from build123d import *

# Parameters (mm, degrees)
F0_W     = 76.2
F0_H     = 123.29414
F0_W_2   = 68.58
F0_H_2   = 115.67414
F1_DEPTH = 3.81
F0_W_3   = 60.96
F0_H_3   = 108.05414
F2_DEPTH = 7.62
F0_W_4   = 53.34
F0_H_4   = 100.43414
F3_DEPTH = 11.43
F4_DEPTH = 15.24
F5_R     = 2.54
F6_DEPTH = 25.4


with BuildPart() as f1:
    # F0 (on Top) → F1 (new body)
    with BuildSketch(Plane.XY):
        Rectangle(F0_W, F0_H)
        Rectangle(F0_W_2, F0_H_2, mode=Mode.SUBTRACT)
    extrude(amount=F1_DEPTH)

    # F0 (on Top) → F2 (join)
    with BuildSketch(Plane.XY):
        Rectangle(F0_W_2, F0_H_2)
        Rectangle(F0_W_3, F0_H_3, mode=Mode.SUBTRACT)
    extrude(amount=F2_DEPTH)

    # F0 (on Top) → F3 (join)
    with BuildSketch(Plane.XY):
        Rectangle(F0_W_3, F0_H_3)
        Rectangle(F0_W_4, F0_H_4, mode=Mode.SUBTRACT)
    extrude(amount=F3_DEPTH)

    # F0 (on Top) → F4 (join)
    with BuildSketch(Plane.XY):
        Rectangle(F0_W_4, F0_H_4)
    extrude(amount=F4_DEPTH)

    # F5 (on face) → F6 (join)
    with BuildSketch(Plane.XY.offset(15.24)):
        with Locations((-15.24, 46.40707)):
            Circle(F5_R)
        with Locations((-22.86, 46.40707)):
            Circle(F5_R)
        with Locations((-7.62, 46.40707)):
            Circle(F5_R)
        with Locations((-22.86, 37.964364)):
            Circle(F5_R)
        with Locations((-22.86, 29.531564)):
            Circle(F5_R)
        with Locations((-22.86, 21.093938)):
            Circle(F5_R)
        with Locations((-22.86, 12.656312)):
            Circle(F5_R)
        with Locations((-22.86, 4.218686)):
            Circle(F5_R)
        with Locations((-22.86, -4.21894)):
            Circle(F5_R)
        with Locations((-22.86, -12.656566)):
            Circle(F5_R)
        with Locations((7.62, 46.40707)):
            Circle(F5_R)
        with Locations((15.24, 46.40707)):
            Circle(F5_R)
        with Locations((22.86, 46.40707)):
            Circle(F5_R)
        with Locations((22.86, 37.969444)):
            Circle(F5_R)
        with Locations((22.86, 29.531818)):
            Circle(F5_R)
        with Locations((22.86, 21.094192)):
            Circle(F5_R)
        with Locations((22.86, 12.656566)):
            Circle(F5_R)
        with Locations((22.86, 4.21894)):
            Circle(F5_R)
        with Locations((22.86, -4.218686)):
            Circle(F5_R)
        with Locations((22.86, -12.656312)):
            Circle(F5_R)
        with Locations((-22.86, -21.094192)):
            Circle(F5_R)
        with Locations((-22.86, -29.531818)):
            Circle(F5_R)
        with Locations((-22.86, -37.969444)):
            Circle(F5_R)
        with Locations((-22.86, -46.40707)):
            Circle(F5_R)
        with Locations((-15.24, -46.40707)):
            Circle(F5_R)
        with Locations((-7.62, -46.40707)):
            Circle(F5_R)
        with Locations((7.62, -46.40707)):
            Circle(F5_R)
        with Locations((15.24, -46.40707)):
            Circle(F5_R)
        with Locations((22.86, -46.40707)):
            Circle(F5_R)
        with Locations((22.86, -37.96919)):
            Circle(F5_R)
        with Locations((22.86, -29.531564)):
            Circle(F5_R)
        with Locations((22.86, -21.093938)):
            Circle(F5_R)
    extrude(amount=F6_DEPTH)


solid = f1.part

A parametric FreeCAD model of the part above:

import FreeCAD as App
import Part
import Sketcher

V = App.Vector
Q = App.Units.Quantity


def add_polygon(sketch, points):
    """Adds a closed chain of lines whose ends are joined by coincident constraints."""
    first, n = sketch.GeometryCount, len(points)
    for a, b in zip(points, points[1:] + points[:1]):
        sketch.addGeometry(Part.LineSegment(App.Vector(*a, 0), App.Vector(*b, 0)), False)
    for i in range(n):
        sketch.addConstraint(Sketcher.Constraint("Coincident", first + i, 2, first + (i + 1) % n, 1))

doc = App.newDocument("Part")
body = doc.addObject("PartDesign::Body", "Body")

# Sketch on XY plane
sketch1 = body.newObject("Sketcher::SketchObject", "Sketch")
sketch1.AttachmentSupport = (doc.getObject("XY_Plane"), [""])
sketch1.MapMode = "FlatFace"
add_polygon(sketch1, [(-38.1, 61.64707), (-38.1, -61.64707), (38.1, -61.64707), (38.1, 61.64707)])  # lines 0-3
add_polygon(sketch1, [(34.29, -57.83707), (-34.29, -57.83707), (-34.29, 57.83707), (34.29, 57.83707)])  # lines 4-7
sketch1.addConstraint([
    Sketcher.Constraint("Vertical", 0),
    Sketcher.Constraint("Horizontal", 1),
    Sketcher.Constraint("Vertical", 2),
    Sketcher.Constraint("Horizontal", 3),
    Sketcher.Constraint("Horizontal", 4),
    Sketcher.Constraint("Vertical", 5),
    Sketcher.Constraint("Horizontal", 6),
    Sketcher.Constraint("Vertical", 7),
    Sketcher.Constraint("Symmetric", 0, 2, 2, 2, -1, 1),
    Sketcher.Constraint("Symmetric", 4, 2, 6, 2, -1, 1),
    Sketcher.Constraint("DistanceX", 1, 1, 1, 2, Q("3 in")),
    Sketcher.Constraint("DistanceX", 4, 2, 4, 1, Q("2.7 in")),
    Sketcher.Constraint("DistanceY", 0, 2, 4, 2, Q("0.15 in")),
    Sketcher.Constraint("DistanceY", 0, 2, 0, 1, Q("4.8541 in")),
])
pad1 = body.newObject("PartDesign::Pad", "Pad")
pad1.Profile = sketch1
pad1.Length = Q("0.15 in")

# Sketch on XY plane
sketch2 = body.newObject("Sketcher::SketchObject", "Sketch001")
sketch2.AttachmentSupport = (doc.getObject("XY_Plane"), [""])
sketch2.MapMode = "FlatFace"
add_polygon(sketch2, [(-34.29, 57.83707), (-34.29, -57.83707), (34.29, -57.83707), (34.29, 57.83707)])  # lines 0-3
add_polygon(sketch2, [(30.48, -54.02707), (-30.48, -54.02707), (-30.48, 54.02707), (30.48, 54.02707)])  # lines 4-7
sketch2.addConstraint([
    Sketcher.Constraint("Vertical", 0),
    Sketcher.Constraint("Horizontal", 1),
    Sketcher.Constraint("Vertical", 2),
    Sketcher.Constraint("Horizontal", 3),
    Sketcher.Constraint("Horizontal", 4),
    Sketcher.Constraint("Vertical", 5),
    Sketcher.Constraint("Horizontal", 6),
    Sketcher.Constraint("Vertical", 7),
    Sketcher.Constraint("Symmetric", 0, 2, 2, 2, -1, 1),
    Sketcher.Constraint("Symmetric", 4, 2, 6, 2, -1, 1),
    Sketcher.Constraint("DistanceX", 1, 1, 1, 2, Q("2.7 in")),
    Sketcher.Constraint("DistanceX", 4, 2, 4, 1, Q("2.4 in")),
    Sketcher.Constraint("DistanceY", 0, 2, 4, 2, Q("0.15 in")),
    Sketcher.Constraint("DistanceY", 0, 2, 0, 1, Q("4.5541 in")),
])
pad2 = body.newObject("PartDesign::Pad", "Pad001")
pad2.Profile = sketch2
pad2.Length = Q("0.3 in")

# Sketch on XY plane
sketch3 = body.newObject("Sketcher::SketchObject", "Sketch002")
sketch3.AttachmentSupport = (doc.getObject("XY_Plane"), [""])
sketch3.MapMode = "FlatFace"
add_polygon(sketch3, [(-30.48, 54.02707), (-30.48, -54.02707), (30.48, -54.02707), (30.48, 54.02707)])  # lines 0-3
add_polygon(sketch3, [(26.67, -50.21707), (-26.67, -50.21707), (-26.67, 50.21707), (26.67, 50.21707)])  # lines 4-7
sketch3.addConstraint([
    Sketcher.Constraint("Vertical", 0),
    Sketcher.Constraint("Horizontal", 1),
    Sketcher.Constraint("Vertical", 2),
    Sketcher.Constraint("Horizontal", 3),
    Sketcher.Constraint("Horizontal", 4),
    Sketcher.Constraint("Vertical", 5),
    Sketcher.Constraint("Horizontal", 6),
    Sketcher.Constraint("Vertical", 7),
    Sketcher.Constraint("Symmetric", 0, 2, 2, 2, -1, 1),
    Sketcher.Constraint("Symmetric", 4, 2, 6, 2, -1, 1),
    Sketcher.Constraint("DistanceX", 1, 1, 1, 2, Q("2.4 in")),
    Sketcher.Constraint("DistanceX", 4, 2, 4, 1, Q("2.1 in")),
    Sketcher.Constraint("DistanceY", 0, 2, 4, 2, Q("0.15 in")),
    Sketcher.Constraint("DistanceY", 0, 2, 0, 1, Q("4.2541 in")),
])
pad3 = body.newObject("PartDesign::Pad", "Pad002")
pad3.Profile = sketch3
pad3.Length = Q("0.45 in")

# Sketch on XY plane
sketch4 = body.newObject("Sketcher::SketchObject", "Sketch003")
sketch4.AttachmentSupport = (doc.getObject("XY_Plane"), [""])
sketch4.MapMode = "FlatFace"
add_polygon(sketch4, [(-26.67, 50.21707), (-26.67, -50.21707), (26.67, -50.21707), (26.67, 50.21707)])  # lines 0-3
sketch4.addConstraint([
    Sketcher.Constraint("Vertical", 0),
    Sketcher.Constraint("Horizontal", 1),
    Sketcher.Constraint("Vertical", 2),
    Sketcher.Constraint("Horizontal", 3),
    Sketcher.Constraint("Symmetric", 0, 2, 2, 2, -1, 1),
    Sketcher.Constraint("DistanceX", 1, 1, 1, 2, Q("2.1 in")),
    Sketcher.Constraint("DistanceY", 0, 2, 0, 1, Q("3.9541 in")),
])
pad4 = body.newObject("PartDesign::Pad", "Pad003")
pad4.Profile = sketch4
pad4.Length = Q("0.6 in")

# Sketch on XY plane
sketch5 = body.newObject("Sketcher::SketchObject", "Sketch004")
sketch5.AttachmentSupport = (doc.getObject("XY_Plane"), [""])
sketch5.MapMode = "FlatFace"
sketch5.AttachmentOffset = App.Placement(V(0, 0, 0.6 * 25.4), App.Rotation())
sketch5.addGeometry([
    Part.Circle(V(-15.24, 46.40707, 0), V(0, 0, 1), 2.54),  # 0
    Part.Circle(V(-22.86, 46.40707, 0), V(0, 0, 1), 2.54),  # 1
    Part.Circle(V(-7.62, 46.40707, 0), V(0, 0, 1), 2.54),  # 2
    Part.Circle(V(-22.86, 37.964364, 0), V(0, 0, 1), 2.54),  # 3
    Part.Circle(V(-22.86, 29.531564, 0), V(0, 0, 1), 2.54),  # 4
    Part.Circle(V(-22.86, 21.093938, 0), V(0, 0, 1), 2.54),  # 5
    Part.Circle(V(-22.86, 12.656312, 0), V(0, 0, 1), 2.54),  # 6
    Part.Circle(V(-22.86, 4.218686, 0), V(0, 0, 1), 2.54),  # 7
    Part.Circle(V(-22.86, -4.21894, 0), V(0, 0, 1), 2.54),  # 8
    Part.Circle(V(-22.86, -12.656566, 0), V(0, 0, 1), 2.54),  # 9
    Part.Circle(V(7.62, 46.40707, 0), V(0, 0, 1), 2.54),  # 10
    Part.Circle(V(15.24, 46.40707, 0), V(0, 0, 1), 2.54),  # 11
    Part.Circle(V(22.86, 46.40707, 0), V(0, 0, 1), 2.54),  # 12
    Part.Circle(V(22.86, 37.969444, 0), V(0, 0, 1), 2.54),  # 13
    Part.Circle(V(22.86, 29.531818, 0), V(0, 0, 1), 2.54),  # 14
    Part.Circle(V(22.86, 21.094192, 0), V(0, 0, 1), 2.54),  # 15
    Part.Circle(V(22.86, 12.656566, 0), V(0, 0, 1), 2.54),  # 16
    Part.Circle(V(22.86, 4.21894, 0), V(0, 0, 1), 2.54),  # 17
    Part.Circle(V(22.86, -4.218686, 0), V(0, 0, 1), 2.54),  # 18
    Part.Circle(V(22.86, -12.656312, 0), V(0, 0, 1), 2.54),  # 19
    Part.Circle(V(-22.86, -21.094192, 0), V(0, 0, 1), 2.54),  # 20
    Part.Circle(V(-22.86, -29.531818, 0), V(0, 0, 1), 2.54),  # 21
    Part.Circle(V(-22.86, -37.969444, 0), V(0, 0, 1), 2.54),  # 22
    Part.Circle(V(-22.86, -46.40707, 0), V(0, 0, 1), 2.54),  # 23
    Part.Circle(V(-15.24, -46.40707, 0), V(0, 0, 1), 2.54),  # 24
    Part.Circle(V(-7.62, -46.40707, 0), V(0, 0, 1), 2.54),  # 25
    Part.Circle(V(7.62, -46.40707, 0), V(0, 0, 1), 2.54),  # 26
    Part.Circle(V(15.24, -46.40707, 0), V(0, 0, 1), 2.54),  # 27
    Part.Circle(V(22.86, -46.40707, 0), V(0, 0, 1), 2.54),  # 28
    Part.Circle(V(22.86, -37.96919, 0), V(0, 0, 1), 2.54),  # 29
    Part.Circle(V(22.86, -29.531564, 0), V(0, 0, 1), 2.54),  # 30
    Part.Circle(V(22.86, -21.093938, 0), V(0, 0, 1), 2.54),  # 31
], False)
sketch5.addConstraint([
    Sketcher.Constraint("Equal", 0, 1),
    Sketcher.Constraint("Equal", 1, 2),
    Sketcher.Constraint("Equal", 2, 3),
    Sketcher.Constraint("Equal", 3, 4),
    Sketcher.Constraint("Equal", 4, 5),
    Sketcher.Constraint("Equal", 5, 6),
    Sketcher.Constraint("Equal", 6, 7),
    Sketcher.Constraint("Equal", 7, 8),
    Sketcher.Constraint("Equal", 8, 9),
    Sketcher.Constraint("Equal", 9, 10),
    Sketcher.Constraint("Equal", 10, 11),
    Sketcher.Constraint("Equal", 11, 12),
    Sketcher.Constraint("Equal", 12, 13),
    Sketcher.Constraint("Equal", 13, 14),
    Sketcher.Constraint("Equal", 14, 15),
    Sketcher.Constraint("Equal", 15, 16),
    Sketcher.Constraint("Equal", 16, 17),
    Sketcher.Constraint("Equal", 17, 18),
    Sketcher.Constraint("Equal", 18, 19),
    Sketcher.Constraint("Equal", 19, 20),
    Sketcher.Constraint("Equal", 20, 21),
    Sketcher.Constraint("Equal", 21, 22),
    Sketcher.Constraint("Equal", 22, 23),
    Sketcher.Constraint("Equal", 23, 24),
    Sketcher.Constraint("Equal", 24, 25),
    Sketcher.Constraint("Equal", 25, 26),
    Sketcher.Constraint("Equal", 26, 27),
    Sketcher.Constraint("Equal", 27, 28),
    Sketcher.Constraint("Equal", 28, 29),
    Sketcher.Constraint("Equal", 29, 30),
    Sketcher.Constraint("Equal", 30, 31),
    Sketcher.Constraint("Symmetric", 9, 3, 16, 3, -1, 1),
    Sketcher.Constraint("Symmetric", 8, 3, 17, 3, -1, 1),
    Sketcher.Constraint("Symmetric", 7, 3, 18, 3, -1, 1),
    Sketcher.Constraint("Symmetric", 6, 3, 19, 3, -1, 1),
    Sketcher.Constraint("Symmetric", 15, 3, 20, 3, -1, 1),
    Sketcher.Constraint("Symmetric", 14, 3, 21, 3, -1, 1),
    Sketcher.Constraint("Symmetric", 13, 3, 22, 3, -1, 1),
    Sketcher.Constraint("Symmetric", 12, 3, 23, 3, -1, 1),
    Sketcher.Constraint("Symmetric", 11, 3, 24, 3, -1, 1),
    Sketcher.Constraint("Symmetric", 10, 3, 25, 3, -1, 1),
    Sketcher.Constraint("Symmetric", 2, 3, 26, 3, -1, 1),
    Sketcher.Constraint("Symmetric", 0, 3, 27, 3, -1, 1),
    Sketcher.Constraint("Symmetric", 1, 3, 28, 3, -1, 1),
    Sketcher.Constraint("Symmetric", 4, 3, 30, 3, -1, 1),
    Sketcher.Constraint("Symmetric", 5, 3, 31, 3, -1, 1),
    Sketcher.Constraint("Symmetric", 2, 3, 10, 3, -2),
    Sketcher.Constraint("Symmetric", 0, 3, 11, 3, -2),
    Sketcher.Constraint("Symmetric", 1, 3, 12, 3, -2),
    Sketcher.Constraint("Horizontal", 0, 3, 1, 3),
    Sketcher.Constraint("Horizontal", 1, 3, 2, 3),
    Sketcher.Constraint("Vertical", 1, 3, 3, 3),
    Sketcher.Constraint("Vertical", 3, 3, 4, 3),
    Sketcher.Constraint("Vertical", 4, 3, 5, 3),
    Sketcher.Constraint("Vertical", 5, 3, 6, 3),
    Sketcher.Constraint("Vertical", 6, 3, 7, 3),
    Sketcher.Constraint("Vertical", 7, 3, 8, 3),
    Sketcher.Constraint("Vertical", 8, 3, 9, 3),
    Sketcher.Constraint("Vertical", 12, 3, 13, 3),
    Sketcher.Constraint("Vertical", 13, 3, 14, 3),
    Sketcher.Constraint("Vertical", 14, 3, 15, 3),
    Sketcher.Constraint("Vertical", 28, 3, 29, 3),
    Sketcher.Constraint("Diameter", 0, Q("0.2 in")),
    Sketcher.Constraint("DistanceX", 0, 3, -1, 1, Q("0.6 in")),
    Sketcher.Constraint("DistanceX", 1, 3, -1, 1, Q("0.9 in")),
    Sketcher.Constraint("DistanceX", 2, 3, -1, 1, Q("0.3 in")),
    Sketcher.Constraint("DistanceY", 4, 3, 3, 3, Q("0.332 in")),
    Sketcher.Constraint("DistanceY", 8, 3, -1, 1, Q("0.1661 in")),
    Sketcher.Constraint("DistanceY", 28, 3, 29, 3, Q("0.3322 in")),
    Sketcher.Constraint("DistanceY", -1, 1, 0, 3, 46.40707),
    Sketcher.Constraint("DistanceY", -1, 1, 5, 3, 21.093938),
    Sketcher.Constraint("DistanceY", -1, 1, 14, 3, 29.531818),
    Sketcher.Constraint("DistanceY", -1, 1, 15, 3, 21.094192),
    Sketcher.Constraint("DistanceY", 6, 3, 4, 3, 16.875252),
    Sketcher.Constraint("DistanceY", 7, 3, 3, 3, 33.745678),
    Sketcher.Constraint("DistanceY", 8, 3, 6, 3, 16.875252),
    Sketcher.Constraint("DistanceY", 9, 3, 7, 3, 16.875252),
    Sketcher.Constraint("DistanceY", 16, 3, 13, 3, 25.312878),
])
pad5 = body.newObject("PartDesign::Pad", "Pad004")
pad5.Profile = sketch5
pad5.Length = Q("1 in")

doc.recompute()
